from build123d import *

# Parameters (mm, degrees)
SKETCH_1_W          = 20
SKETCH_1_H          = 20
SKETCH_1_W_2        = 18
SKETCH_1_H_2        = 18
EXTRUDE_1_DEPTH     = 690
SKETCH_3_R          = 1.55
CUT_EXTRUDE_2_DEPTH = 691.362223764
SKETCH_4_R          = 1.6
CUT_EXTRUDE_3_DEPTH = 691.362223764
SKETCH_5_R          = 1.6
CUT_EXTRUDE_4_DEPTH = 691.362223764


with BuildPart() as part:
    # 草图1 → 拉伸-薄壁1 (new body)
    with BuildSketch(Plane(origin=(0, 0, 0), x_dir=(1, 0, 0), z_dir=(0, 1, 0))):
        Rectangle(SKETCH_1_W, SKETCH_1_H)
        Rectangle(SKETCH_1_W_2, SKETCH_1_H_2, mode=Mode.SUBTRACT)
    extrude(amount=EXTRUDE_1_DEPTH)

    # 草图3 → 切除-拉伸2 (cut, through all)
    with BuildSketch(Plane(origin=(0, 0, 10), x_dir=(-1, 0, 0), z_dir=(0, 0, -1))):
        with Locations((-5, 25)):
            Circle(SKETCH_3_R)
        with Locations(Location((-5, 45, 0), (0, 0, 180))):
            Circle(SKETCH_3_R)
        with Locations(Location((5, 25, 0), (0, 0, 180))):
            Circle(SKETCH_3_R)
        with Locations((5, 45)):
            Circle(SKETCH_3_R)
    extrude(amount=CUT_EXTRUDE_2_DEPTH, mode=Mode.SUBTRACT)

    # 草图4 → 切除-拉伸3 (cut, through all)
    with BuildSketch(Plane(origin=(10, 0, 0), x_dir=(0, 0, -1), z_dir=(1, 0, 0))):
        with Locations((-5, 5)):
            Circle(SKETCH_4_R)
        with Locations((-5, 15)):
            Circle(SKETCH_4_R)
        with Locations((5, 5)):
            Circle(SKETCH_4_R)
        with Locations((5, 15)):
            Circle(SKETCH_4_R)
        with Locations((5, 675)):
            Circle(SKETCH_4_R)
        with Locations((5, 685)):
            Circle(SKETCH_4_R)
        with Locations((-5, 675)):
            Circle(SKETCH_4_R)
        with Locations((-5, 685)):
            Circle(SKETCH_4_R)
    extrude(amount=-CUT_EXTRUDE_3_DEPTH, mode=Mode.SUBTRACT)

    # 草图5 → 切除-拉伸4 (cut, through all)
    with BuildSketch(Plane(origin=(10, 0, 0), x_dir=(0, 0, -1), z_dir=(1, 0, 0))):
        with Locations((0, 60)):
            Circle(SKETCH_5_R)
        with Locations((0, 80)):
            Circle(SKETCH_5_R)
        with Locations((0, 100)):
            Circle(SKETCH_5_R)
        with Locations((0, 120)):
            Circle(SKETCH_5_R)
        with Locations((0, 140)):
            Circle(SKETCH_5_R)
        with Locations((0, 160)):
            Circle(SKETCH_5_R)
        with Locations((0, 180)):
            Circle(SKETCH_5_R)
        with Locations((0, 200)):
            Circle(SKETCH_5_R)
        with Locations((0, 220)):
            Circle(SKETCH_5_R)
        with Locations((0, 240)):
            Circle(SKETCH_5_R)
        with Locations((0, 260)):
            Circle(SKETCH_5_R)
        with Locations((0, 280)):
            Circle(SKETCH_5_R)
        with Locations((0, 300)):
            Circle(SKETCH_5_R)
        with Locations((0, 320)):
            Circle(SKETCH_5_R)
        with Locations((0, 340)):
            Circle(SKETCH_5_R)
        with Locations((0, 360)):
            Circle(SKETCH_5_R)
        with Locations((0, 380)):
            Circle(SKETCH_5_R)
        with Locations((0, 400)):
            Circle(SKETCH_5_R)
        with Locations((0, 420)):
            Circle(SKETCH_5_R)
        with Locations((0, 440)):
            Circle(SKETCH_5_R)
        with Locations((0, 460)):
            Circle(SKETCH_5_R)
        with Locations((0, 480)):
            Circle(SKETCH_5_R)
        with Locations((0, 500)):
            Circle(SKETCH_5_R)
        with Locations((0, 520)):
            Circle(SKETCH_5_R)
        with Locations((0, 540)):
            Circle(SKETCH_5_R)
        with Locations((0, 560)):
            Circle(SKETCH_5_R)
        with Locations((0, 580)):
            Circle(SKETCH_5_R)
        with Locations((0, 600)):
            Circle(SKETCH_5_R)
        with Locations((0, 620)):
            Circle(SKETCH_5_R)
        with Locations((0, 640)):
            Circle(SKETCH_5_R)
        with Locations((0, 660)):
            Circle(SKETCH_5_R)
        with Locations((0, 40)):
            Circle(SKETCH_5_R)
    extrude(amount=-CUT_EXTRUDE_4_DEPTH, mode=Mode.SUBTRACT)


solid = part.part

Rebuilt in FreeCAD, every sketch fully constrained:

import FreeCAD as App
import Part
import Sketcher
from FreeCAD import Vector

doc = App.newDocument("Part")
body = doc.addObject("PartDesign::Body", "Body")

# Sketch on XZ plane
sketch1 = body.newObject("Sketcher::SketchObject", "Sketch")
sketch1.AttachmentSupport = (doc.getObject("XZ_Plane"), [""])
sketch1.MapMode = "FlatFace"
sketch1.addGeometry([
    Part.LineSegment(Vector(-10, -10, 0), Vector(-10, 10, 0)),  # 0
    Part.LineSegment(Vector(-10, 10, 0), Vector(10, 10, 0)),  # 1
    Part.LineSegment(Vector(10, 10, 0), Vector(10, -10, 0)),  # 2
    Part.LineSegment(Vector(10, -10, 0), Vector(-10, -10, 0)),  # 3
    Part.LineSegment(Vector(9, 9, 0), Vector(-9, 9, 0)),  # 4
    Part.LineSegment(Vector(-9, 9, 0), Vector(-9, -9, 0)),  # 5
    Part.LineSegment(Vector(-9, -9, 0), Vector(9, -9, 0)),  # 6
    Part.LineSegment(Vector(9, -9, 0), Vector(9, 9, 0)),  # 7
], False)
sketch1.addConstraint([
    Sketcher.Constraint("Coincident", 0, 2, 1, 1),
    Sketcher.Constraint("Coincident", 1, 2, 2, 1),
    Sketcher.Constraint("Coincident", 2, 2, 3, 1),
    Sketcher.Constraint("Coincident", 3, 2, 0, 1),
    Sketcher.Constraint("Coincident", 4, 2, 5, 1),
    Sketcher.Constraint("Coincident", 5, 2, 6, 1),
    Sketcher.Constraint("Coincident", 6, 2, 7, 1),
    Sketcher.Constraint("Coincident", 7, 2, 4, 1),
    Sketcher.Constraint("Vertical", 0),
    Sketcher.Constraint("Horizontal", 1),
    Sketcher.Constraint("Vertical", 2),
    Sketcher.Constraint("Horizontal", 3),
    Sketcher.Constraint("Horizontal", 4),
    Sketcher.Constraint("Vertical", 5),
    Sketcher.Constraint("Horizontal", 6),
    Sketcher.Constraint("Vertical", 7),
    Sketcher.Constraint("Symmetric", 0, 2, 2, 2, -1, 1),
    Sketcher.Constraint("Symmetric", 4, 2, 6, 2, -1, 1),
    Sketcher.Constraint("Equal", 3, 0),
    Sketcher.Constraint("Equal", 6, 5),
    Sketcher.Constraint("DistanceX", 1, 1, 1, 2, 20.0),
    Sketcher.Constraint("DistanceX", 4, 2, 4, 1, 18.0),
])
pad1 = body.newObject("PartDesign::Pad", "Pad")
pad1.Profile = sketch1
pad1.Length = 690
pad1.Reversed = True

# Sketch on XY plane
sketch2 = body.newObject("Sketcher::SketchObject", "Sketch001")
sketch2.AttachmentSupport = (doc.getObject("XY_Plane"), [""])
sketch2.MapMode = "FlatFace"
sketch2.AttachmentOffset = App.Placement(Vector(0, 0, 10), App.Rotation())
sketch2.addGeometry([
    Part.Circle(Vector(5, 25, 0), Vector(0, 0, 1), 1.6),
    Part.Circle(Vector(5, 45, 0), Vector(0, 0, 1), 1.6),
    Part.Circle(Vector(-5, 25, 0), Vector(0, 0, 1), 1.6),
    Part.Circle(Vector(-5, 45, 0), Vector(0, 0, 1), 1.6),
], False)
sketch2.addConstraint([
    Sketcher.Constraint("Equal", 0, 1),
    Sketcher.Constraint("Equal", 1, 2),
    Sketcher.Constraint("Equal", 2, 3),
    Sketcher.Constraint("Symmetric", 0, 3, 2, 3, -2),
    Sketcher.Constraint("Symmetric", 1, 3, 3, 3, -2),
    Sketcher.Constraint("Vertical", 0, 3, 1, 3),
    Sketcher.Constraint("Diameter", 0, 3.1),
    Sketcher.Constraint("DistanceX", -1, 1, 0, 3, 5.0),
    Sketcher.Constraint("DistanceY", -1, 1, 0, 3, 25.0),
    Sketcher.Constraint("DistanceY", -1, 1, 1, 3, 45.0),
])
pocket1 = body.newObject("PartDesign::Pocket", "Pocket")
pocket1.Profile = sketch2
pocket1.Type = "ThroughAll"

# Sketch on YZ plane
sketch3 = body.newObject("Sketcher::SketchObject", "Sketch002")
sketch3.AttachmentSupport = (doc.getObject("YZ_Plane"), [""])
sketch3.MapMode = "FlatFace"
sketch3.AttachmentOffset = App.Placement(Vector(0, 0, 10), App.Rotation())
sketch3.addGeometry([
    Part.Circle(Vector(5, 5, 0), Vector(0, 0, 1), 1.6),  # 0
    Part.Circle(Vector(15, 5, 0), Vector(0, 0, 1), 1.6),  # 1
    Part.Circle(Vector(5, -5, 0), Vector(0, 0, 1), 1.6),  # 2
    Part.Circle(Vector(15, -5, 0), Vector(0, 0, 1), 1.6),  # 3
    Part.Circle(Vector(675, -5, 0), Vector(0, 0, 1), 1.6),  # 4
    Part.Circle(Vector(685, -5, 0), Vector(0, 0, 1), 1.6),  # 5
    Part.Circle(Vector(675, 5, 0), Vector(0, 0, 1), 1.6),  # 6
    Part.Circle(Vector(685, 5, 0), Vector(0, 0, 1), 1.6),  # 7
], False)
sketch3.addConstraint([
    Sketcher.Constraint("Equal", 0, 1),
    Sketcher.Constraint("Equal", 1, 2),
    Sketcher.Constraint("Equal", 2, 3),
    Sketcher.Constraint("Equal", 3, 4),
    Sketcher.Constraint("Equal", 4, 5),
    Sketcher.Constraint("Equal", 5, 6),
    Sketcher.Constraint("Equal", 6, 7),
    Sketcher.Constraint("Symmetric", 0, 3, 2, 3, -1),
    Sketcher.Constraint("Symmetric", 1, 3, 3, 3, -1),
    Sketcher.Constraint("Symmetric", 4, 3, 6, 3, -1),
    Sketcher.Constraint("Symmetric", 5, 3, 7, 3, -1),
    Sketcher.Constraint("Horizontal", 0, 3, 1, 3),
    Sketcher.Constraint("Horizontal", 3, 3, 4, 3),
    Sketcher.Constraint("Horizontal", 4, 3, 5, 3),
    Sketcher.Constraint("Diameter", 0, 3.2),
    Sketcher.Constraint("DistanceX", -1, 1, 0, 3, 5.0),
    Sketcher.Constraint("DistanceY", -1, 1, 0, 3, 5.0),
    Sketcher.Constraint("DistanceX", -1, 1, 1, 3, 15.0),
    Sketcher.Constraint("DistanceX", -1, 1, 4, 3, 675.0),
    Sketcher.Constraint("DistanceX", -1, 1, 5, 3, 685.0),
])
pocket2 = body.newObject("PartDesign::Pocket", "Pocket001")
pocket2.Profile = sketch3
pocket2.Type = "ThroughAll"

# Sketch on YZ plane
sketch4 = body.newObject("Sketcher::SketchObject", "Sketch003")
sketch4.AttachmentSupport = (doc.getObject("YZ_Plane"), [""])
sketch4.MapMode = "FlatFace"
sketch4.AttachmentOffset = App.Placement(Vector(0, 0, 10), App.Rotation())
sketch4.addGeometry([
    Part.Circle(Vector(60, 0, 0), Vector(0, 0, 1), 1.6),  # 0
    Part.Circle(Vector(80, 0, 0), Vector(0, 0, 1), 1.6),  # 1
    Part.Circle(Vector(100, 0, 0), Vector(0, 0, 1), 1.6),  # 2
    Part.Circle(Vector(120, 0, 0), Vector(0, 0, 1), 1.6),  # 3
    Part.Circle(Vector(140, 0, 0), Vector(0, 0, 1), 1.6),  # 4
    Part.Circle(Vector(160, 0, 0), Vector(0, 0, 1), 1.6),  # 5
    Part.Circle(Vector(180, 0, 0), Vector(0, 0, 1), 1.6),  # 6
    Part.Circle(Vector(200, 0, 0), Vector(0, 0, 1), 1.6),  # 7
    Part.Circle(Vector(220, 0, 0), Vector(0, 0, 1), 1.6),  # 8
    Part.Circle(Vector(240, 0, 0), Vector(0, 0, 1), 1.6),  # 9
    Part.Circle(Vector(260, 0, 0), Vector(0, 0, 1), 1.6),  # 10
    Part.Circle(Vector(280, 0, 0), Vector(0, 0, 1), 1.6),  # 11
    Part.Circle(Vector(300, 0, 0), Vector(0, 0, 1), 1.6),  # 12
    Part.Circle(Vector(320, 0, 0), Vector(0, 0, 1), 1.6),  # 13
    Part.Circle(Vector(340, 0, 0), Vector(0, 0, 1), 1.6),  # 14
    Part.Circle(Vector(360, 0, 0), Vector(0, 0, 1), 1.6),  # 15
    Part.Circle(Vector(380, 0, 0), Vector(0, 0, 1), 1.6),  # 16
    Part.Circle(Vector(400, 0, 0), Vector(0, 0, 1), 1.6),  # 17
    Part.Circle(Vector(420, 0, 0), Vector(0, 0, 1), 1.6),  # 18
    Part.Circle(Vector(440, 0, 0), Vector(0, 0, 1), 1.6),  # 19
    Part.Circle(Vector(460, 0, 0), Vector(0, 0, 1), 1.6),  # 20
    Part.Circle(Vector(480, 0, 0), Vector(0, 0, 1), 1.6),  # 21
    Part.Circle(Vector(500, 0, 0), Vector(0, 0, 1), 1.6),  # 22
    Part.Circle(Vector(520, 0, 0), Vector(0, 0, 1), 1.6),  # 23
    Part.Circle(Vector(540, 0, 0), Vector(0, 0, 1), 1.6),  # 24
    Part.Circle(Vector(560, 0, 0), Vector(0, 0, 1), 1.6),  # 25
    Part.Circle(Vector(580, 0, 0), Vector(0, 0, 1), 1.6),  # 26
    Part.Circle(Vector(600, 0, 0), Vector(0, 0, 1), 1.6),  # 27
    Part.Circle(Vector(620, 0, 0), Vector(0, 0, 1), 1.6),  # 28
    Part.Circle(Vector(640, 0, 0), Vector(0, 0, 1), 1.6),  # 29
    Part.Circle(Vector(660, 0, 0), Vector(0, 0, 1), 1.6),  # 30
    Part.Circle(Vector(40, 0, 0), Vector(0, 0, 1), 1.6),  # 31
], False)
sketch4.addConstraint([
    Sketcher.Constraint("Equal", 0, 1),
    Sketcher.Constraint("Equal", 1, 2),
    Sketcher.Constraint("Equal", 2, 3),
    Sketcher.Constraint("Equal", 3, 4),
    Sketcher.Constraint("Equal", 4, 5),
    Sketcher.Constraint("Equal", 5, 6),
    Sketcher.Constraint("Equal", 6, 7),
    Sketcher.Constraint("Equal", 7, 8),
    Sketcher.Constraint("Equal", 8, 9),
    Sketcher.Constraint("Equal", 9, 10),
    Sketcher.Constraint("Equal", 10, 11),
    Sketcher.Constraint("Equal", 11, 12),
    Sketcher.Constraint("Equal", 12, 13),
    Sketcher.Constraint("Equal", 13, 14),
    Sketcher.Constraint("Equal", 14, 15),
    Sketcher.Constraint("Equal", 15, 16),
    Sketcher.Constraint("Equal", 16, 17),
    Sketcher.Constraint("Equal", 17, 18),
    Sketcher.Constraint("Equal", 18, 19),
    Sketcher.Constraint("Equal", 19, 20),
    Sketcher.Constraint("Equal", 20, 21),
    Sketcher.Constraint("Equal", 21, 22),
    Sketcher.Constraint("Equal", 22, 23),
    Sketcher.Constraint("Equal", 23, 24),
    Sketcher.Constraint("Equal", 24, 25),
    Sketcher.Constraint("Equal", 25, 26),
    Sketcher.Constraint("Equal", 26, 27),
    Sketcher.Constraint("Equal", 27, 28),
    Sketcher.Constraint("Equal", 28, 29),
    Sketcher.Constraint("Equal", 29, 30),
    Sketcher.Constraint("Equal", 30, 31),
    Sketcher.Constraint("PointOnObject", 0, 3, -1),
    Sketcher.Constraint("PointOnObject", 1, 3, -1),
    Sketcher.Constraint("PointOnObject", 2, 3, -1),
    Sketcher.Constraint("PointOnObject", 3, 3, -1),
    Sketcher.Constraint("PointOnObject", 4, 3, -1),
    Sketcher.Constraint("PointOnObject", 5, 3, -1),
    Sketcher.Constraint("PointOnObject", 6, 3, -1),
    Sketcher.Constraint("PointOnObject", 7, 3, -1),
    Sketcher.Constraint("PointOnObject", 8, 3, -1),
    Sketcher.Constraint("PointOnObject", 9, 3, -1),
    Sketcher.Constraint("PointOnObject", 10, 3, -1),
    Sketcher.Constraint("PointOnObject", 11, 3, -1),
    Sketcher.Constraint("PointOnObject", 12, 3, -1),
    Sketcher.Constraint("PointOnObject", 13, 3, -1),
    Sketcher.Constraint("PointOnObject", 14, 3, -1),
    Sketcher.Constraint("PointOnObject", 15, 3, -1),
    Sketcher.Constraint("PointOnObject", 16, 3, -1),
    Sketcher.Constraint("PointOnObject", 17, 3, -1),
    Sketcher.Constraint("PointOnObject", 18, 3, -1),
    Sketcher.Constraint("PointOnObject", 19, 3, -1),
    Sketcher.Constraint("PointOnObject", 20, 3, -1),
    Sketcher.Constraint("PointOnObject", 21, 3, -1),
    Sketcher.Constraint("PointOnObject", 22, 3, -1),
    Sketcher.Constraint("PointOnObject", 23, 3, -1),
    Sketcher.Constraint("PointOnObject", 24, 3, -1),
    Sketcher.Constraint("PointOnObject", 25, 3, -1),
    Sketcher.Constraint("PointOnObject", 26, 3, -1),
    Sketcher.Constraint("PointOnObject", 27, 3, -1),
    Sketcher.Constraint("PointOnObject", 28, 3, -1),
    Sketcher.Constraint("PointOnObject", 29, 3, -1),
    Sketcher.Constraint("PointOnObject", 30, 3, -1),
    Sketcher.Constraint("PointOnObject", 31, 3, -1),
    Sketcher.Constraint("Diameter", 0, 3.2),
    Sketcher.Constraint("DistanceX", -1, 1, 0, 3, 60.0),
    Sketcher.Constraint("DistanceX", -1, 1, 1, 3, 80.0),
    Sketcher.Constraint("DistanceX", -1, 1, 2, 3, 100.0),
    Sketcher.Constraint("DistanceX", -1, 1, 3, 3, 120.0),
    Sketcher.Constraint("DistanceX", -1, 1, 4, 3, 140.0),
    Sketcher.Constraint("DistanceX", -1, 1, 5, 3, 160.0),
    Sketcher.Constraint("DistanceX", -1, 1, 6, 3, 180.0),
    Sketcher.Constraint("DistanceX", -1, 1, 7, 3, 200.0),
    Sketcher.Constraint("DistanceX", -1, 1, 8, 3, 220.0),
    Sketcher.Constraint("DistanceX", -1, 1, 9, 3, 240.0),
    Sketcher.Constraint("DistanceX", -1, 1, 10, 3, 260.0),
    Sketcher.Constraint("DistanceX", -1, 1, 11, 3, 280.0),
    Sketcher.Constraint("DistanceX", -1, 1, 12, 3, 300.0),
    Sketcher.Constraint("DistanceX", -1, 1, 13, 3, 320.0),
    Sketcher.Constraint("DistanceX", -1, 1, 14, 3, 340.0),
    Sketcher.Constraint("DistanceX", -1, 1, 15, 3, 360.0),
    Sketcher.Constraint("DistanceX", -1, 1, 16, 3, 380.0),
    Sketcher.Constraint("DistanceX", -1, 1, 17, 3, 400.0),
    Sketcher.Constraint("DistanceX", -1, 1, 18, 3, 420.0),
    Sketcher.Constraint("DistanceX", -1, 1, 19, 3, 440.0),
    Sketcher.Constraint("DistanceX", -1, 1, 20, 3, 460.0),
    Sketcher.Constraint("DistanceX", -1, 1, 21, 3, 480.0),
    Sketcher.Constraint("DistanceX", -1, 1, 22, 3, 500.0),
    Sketcher.Constraint("DistanceX", -1, 1, 23, 3, 520.0),
    Sketcher.Constraint("DistanceX", -1, 1, 24, 3, 540.0),
    Sketcher.Constraint("DistanceX", -1, 1, 25, 3, 560.0),
    Sketcher.Constraint("DistanceX", -1, 1, 26, 3, 580.0),
    Sketcher.Constraint("DistanceX", -1, 1, 27, 3, 600.0),
    Sketcher.Constraint("DistanceX", -1, 1, 28, 3, 620.0),
    Sketcher.Constraint("DistanceX", -1, 1, 29, 3, 640.0),
    Sketcher.Constraint("DistanceX", -1, 1, 30, 3, 660.0),
    Sketcher.Constraint("DistanceX", -1, 1, 31, 3, 40.0),
])
pocket3 = body.newObject("PartDesign::Pocket", "Pocket002")
pocket3.Profile = sketch4
pocket3.Type = "ThroughAll"

doc.recompute()
